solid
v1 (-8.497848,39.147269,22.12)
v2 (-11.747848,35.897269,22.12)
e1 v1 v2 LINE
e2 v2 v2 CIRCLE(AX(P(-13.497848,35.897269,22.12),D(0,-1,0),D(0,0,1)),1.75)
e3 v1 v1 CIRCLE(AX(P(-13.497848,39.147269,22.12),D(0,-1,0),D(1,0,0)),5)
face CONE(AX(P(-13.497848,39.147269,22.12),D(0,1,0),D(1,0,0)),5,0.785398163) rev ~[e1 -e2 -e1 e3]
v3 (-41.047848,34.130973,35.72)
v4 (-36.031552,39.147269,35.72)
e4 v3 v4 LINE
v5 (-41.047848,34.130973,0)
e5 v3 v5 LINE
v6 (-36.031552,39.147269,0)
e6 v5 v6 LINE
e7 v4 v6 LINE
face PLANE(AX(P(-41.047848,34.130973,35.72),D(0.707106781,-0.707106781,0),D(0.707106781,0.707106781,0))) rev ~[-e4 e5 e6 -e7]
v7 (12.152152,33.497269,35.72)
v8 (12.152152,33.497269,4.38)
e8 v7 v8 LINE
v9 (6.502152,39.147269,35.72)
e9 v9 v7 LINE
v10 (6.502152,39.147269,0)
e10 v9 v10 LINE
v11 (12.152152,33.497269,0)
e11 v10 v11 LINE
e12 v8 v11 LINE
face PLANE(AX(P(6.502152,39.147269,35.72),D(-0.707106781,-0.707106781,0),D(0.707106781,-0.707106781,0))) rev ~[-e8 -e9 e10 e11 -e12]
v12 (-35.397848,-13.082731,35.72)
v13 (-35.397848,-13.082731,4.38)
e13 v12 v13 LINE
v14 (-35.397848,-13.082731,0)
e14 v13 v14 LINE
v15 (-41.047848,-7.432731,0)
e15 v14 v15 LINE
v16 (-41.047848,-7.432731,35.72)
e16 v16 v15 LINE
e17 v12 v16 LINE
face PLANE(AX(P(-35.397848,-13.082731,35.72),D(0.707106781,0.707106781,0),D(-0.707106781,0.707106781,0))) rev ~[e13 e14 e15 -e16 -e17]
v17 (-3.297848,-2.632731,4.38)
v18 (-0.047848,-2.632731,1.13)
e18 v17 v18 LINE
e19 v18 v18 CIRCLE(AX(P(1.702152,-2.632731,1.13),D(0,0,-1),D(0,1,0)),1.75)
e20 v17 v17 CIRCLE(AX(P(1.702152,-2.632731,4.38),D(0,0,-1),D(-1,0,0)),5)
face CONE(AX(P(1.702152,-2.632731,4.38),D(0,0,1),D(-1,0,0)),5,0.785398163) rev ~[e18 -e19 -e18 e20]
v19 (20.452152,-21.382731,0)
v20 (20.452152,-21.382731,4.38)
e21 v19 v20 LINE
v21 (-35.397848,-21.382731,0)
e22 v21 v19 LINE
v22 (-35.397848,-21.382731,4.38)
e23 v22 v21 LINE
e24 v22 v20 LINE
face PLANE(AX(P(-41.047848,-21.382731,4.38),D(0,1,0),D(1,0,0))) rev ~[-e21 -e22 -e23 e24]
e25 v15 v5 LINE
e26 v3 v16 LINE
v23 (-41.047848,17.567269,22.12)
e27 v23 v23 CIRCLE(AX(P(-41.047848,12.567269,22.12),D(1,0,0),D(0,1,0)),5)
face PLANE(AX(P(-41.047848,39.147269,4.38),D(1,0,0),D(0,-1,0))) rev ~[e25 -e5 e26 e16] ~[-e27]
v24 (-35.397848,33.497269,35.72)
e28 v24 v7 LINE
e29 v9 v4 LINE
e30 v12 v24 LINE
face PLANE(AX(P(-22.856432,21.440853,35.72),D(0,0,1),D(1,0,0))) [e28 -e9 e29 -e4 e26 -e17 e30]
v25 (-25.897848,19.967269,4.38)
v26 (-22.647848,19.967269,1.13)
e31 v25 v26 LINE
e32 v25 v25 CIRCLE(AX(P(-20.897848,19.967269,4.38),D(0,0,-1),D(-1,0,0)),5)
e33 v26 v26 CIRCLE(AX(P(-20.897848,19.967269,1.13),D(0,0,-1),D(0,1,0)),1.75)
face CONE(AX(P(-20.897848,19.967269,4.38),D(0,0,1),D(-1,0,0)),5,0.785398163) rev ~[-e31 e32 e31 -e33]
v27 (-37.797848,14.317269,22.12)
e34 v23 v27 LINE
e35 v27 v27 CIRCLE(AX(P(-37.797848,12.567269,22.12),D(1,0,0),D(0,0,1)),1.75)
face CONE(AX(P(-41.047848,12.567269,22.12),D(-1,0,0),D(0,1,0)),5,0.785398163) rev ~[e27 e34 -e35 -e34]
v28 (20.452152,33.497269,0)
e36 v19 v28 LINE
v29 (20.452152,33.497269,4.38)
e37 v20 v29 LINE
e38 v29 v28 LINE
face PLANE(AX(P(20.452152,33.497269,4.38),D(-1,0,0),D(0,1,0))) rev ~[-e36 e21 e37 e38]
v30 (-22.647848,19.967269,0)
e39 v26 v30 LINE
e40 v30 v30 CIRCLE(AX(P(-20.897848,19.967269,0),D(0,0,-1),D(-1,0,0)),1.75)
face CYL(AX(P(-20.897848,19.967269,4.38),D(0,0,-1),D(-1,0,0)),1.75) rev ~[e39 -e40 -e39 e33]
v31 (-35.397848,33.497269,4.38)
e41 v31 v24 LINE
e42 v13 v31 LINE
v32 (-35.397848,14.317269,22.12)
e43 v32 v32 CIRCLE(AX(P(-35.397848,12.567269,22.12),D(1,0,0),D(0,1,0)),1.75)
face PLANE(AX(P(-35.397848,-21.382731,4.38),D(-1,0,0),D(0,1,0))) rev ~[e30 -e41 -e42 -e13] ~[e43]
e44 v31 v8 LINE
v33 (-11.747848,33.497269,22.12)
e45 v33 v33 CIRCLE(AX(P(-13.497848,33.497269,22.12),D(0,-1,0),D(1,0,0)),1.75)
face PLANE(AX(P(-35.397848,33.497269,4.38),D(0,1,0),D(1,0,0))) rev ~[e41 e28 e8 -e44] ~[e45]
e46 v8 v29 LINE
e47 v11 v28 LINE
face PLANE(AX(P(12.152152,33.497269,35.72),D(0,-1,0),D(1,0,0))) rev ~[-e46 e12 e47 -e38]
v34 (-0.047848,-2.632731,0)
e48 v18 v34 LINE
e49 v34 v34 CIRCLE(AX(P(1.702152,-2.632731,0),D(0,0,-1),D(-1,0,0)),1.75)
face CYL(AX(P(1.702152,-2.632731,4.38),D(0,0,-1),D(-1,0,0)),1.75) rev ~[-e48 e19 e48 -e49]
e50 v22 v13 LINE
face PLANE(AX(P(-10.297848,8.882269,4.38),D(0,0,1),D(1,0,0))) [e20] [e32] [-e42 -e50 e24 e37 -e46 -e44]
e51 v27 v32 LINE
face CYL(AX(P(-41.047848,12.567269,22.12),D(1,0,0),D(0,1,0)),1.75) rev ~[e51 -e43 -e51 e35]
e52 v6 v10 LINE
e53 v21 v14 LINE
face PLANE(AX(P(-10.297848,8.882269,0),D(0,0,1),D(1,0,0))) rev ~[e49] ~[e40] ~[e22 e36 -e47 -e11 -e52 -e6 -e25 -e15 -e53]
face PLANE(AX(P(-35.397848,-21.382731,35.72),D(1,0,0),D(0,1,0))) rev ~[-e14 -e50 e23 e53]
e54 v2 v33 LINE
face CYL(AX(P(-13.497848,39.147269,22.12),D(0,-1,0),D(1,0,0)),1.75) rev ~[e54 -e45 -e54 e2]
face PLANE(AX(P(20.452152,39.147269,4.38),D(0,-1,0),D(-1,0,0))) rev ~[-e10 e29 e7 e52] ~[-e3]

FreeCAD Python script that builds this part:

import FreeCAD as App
import Part
import Sketcher
from FreeCAD import Vector
Q = App.Units.Quantity


def add_polygon(sketch, points):
    """Adds a closed chain of lines whose ends are joined by coincident constraints."""
    first, n = sketch.GeometryCount, len(points)
    for a, b in zip(points, points[1:] + points[:1]):
        sketch.addGeometry(Part.LineSegment(App.Vector(*a, 0), App.Vector(*b, 0)), False)
    for i in range(n):
        sketch.addConstraint(Sketcher.Constraint("Coincident", first + i, 2, first + (i + 1) % n, 1))

doc = App.newDocument("Part")
body = doc.addObject("PartDesign::Body", "Body")

# Sketch on XY plane
sketch1 = doc.addObject("Sketcher::SketchObject", "Sketch")
body.addObject(sketch1)
sketch1.AttachmentSupport = (doc.XY_Plane, [""])
sketch1.MapMode = "FlatFace"
add_polygon(sketch1, [(-41, 39), (-41, -21), (20, -21), (20, 39)])  # lines 0-3
sketch1.addConstraint([
    Sketcher.Constraint("Vertical", 0),
    Sketcher.Constraint("Horizontal", 1),
    Sketcher.Constraint("Vertical", 2),
    Sketcher.Constraint("Horizontal", 3),
    Sketcher.Constraint("DistanceX", 1, 1, 1, 2, Q("61.5 mm")),
    Sketcher.Constraint("DistanceY", 0, 2, 0, 1, Q("60.53 mm")),
    Sketcher.Constraint("DistanceX", 0, 2, -1, 1, Q("41.047848 mm")),
    Sketcher.Constraint("DistanceY", 0, 2, -1, 1, Q("21.382731 mm")),
])
pad1 = doc.addObject("PartDesign::Pad", "Pad")
body.addObject(pad1)
pad1.Profile = sketch1
pad1.Length = 4.38

# Sketch on XY plane
sketch2 = doc.addObject("Sketcher::SketchObject", "Sketch001")
body.addObject(sketch2)
sketch2.AttachmentSupport = (doc.XY_Plane, [""])
sketch2.MapMode = "FlatFace"
sketch2.AttachmentOffset = App.Placement(Vector(0, 0, 4.38), App.Rotation())
add_polygon(sketch2, [(-41, 39), (-41, -21), (-35, -21), (-35, 33), (20, 33), (20, 39)])  # lines 0-5
sketch2.addConstraint([
    Sketcher.Constraint("Vertical", 0),
    Sketcher.Constraint("Horizontal", 1),
    Sketcher.Constraint("Vertical", 2),
    Sketcher.Constraint("Horizontal", 3),
    Sketcher.Constraint("Vertical", 4),
    Sketcher.Constraint("Horizontal", 5),
    Sketcher.Constraint("Equal", 1, 4),
    Sketcher.Constraint("DistanceX", 5, 2, 5, 1, Q("61.5 mm")),
    Sketcher.Constraint("DistanceX", 1, 1, 1, 2, Q("5.65 mm")),
    Sketcher.Constraint("DistanceY", 0, 2, 0, 1, Q("60.53 mm")),
    Sketcher.Constraint("DistanceX", 0, 2, -1, 1, Q("41.047848 mm")),
    Sketcher.Constraint("DistanceY", 0, 2, -1, 1, Q("21.382731 mm")),
])
pad2 = doc.addObject("PartDesign::Pad", "Pad001")
body.addObject(pad2)
pad2.Profile = sketch2
pad2.Length = 31.34

# Sketch on XY plane
sketch3 = doc.addObject("Sketcher::SketchObject", "Sketch002")
body.addObject(sketch3)
sketch3.AttachmentSupport = (doc.XY_Plane, [""])
sketch3.MapMode = "FlatFace"
sketch3.AttachmentOffset = App.Placement(Vector(0, 0, 35.72), App.Rotation())
add_polygon(sketch3, [(-41, -13), (-41, -21), (-35, -21), (-35, -13)])  # lines 0-3
add_polygon(sketch3, [(12, 39), (12, 33), (20, 33), (20, 39)])  # lines 4-7
sketch3.addConstraint([
    Sketcher.Constraint("Vertical", 0),
    Sketcher.Constraint("Horizontal", 1),
    Sketcher.Constraint("Vertical", 2),
    Sketcher.Constraint("Horizontal", 3),
    Sketcher.Constraint("Vertical", 4),
    Sketcher.Constraint("Horizontal", 5),
    Sketcher.Constraint("Vertical", 6),
    Sketcher.Constraint("Horizontal", 7),
    Sketcher.Constraint("Equal", 7, 0),
    Sketcher.Constraint("Equal", 3, 4),
    Sketcher.Constraint("DistanceX", 5, 1, 5, 2, Q("8.3 mm")),
    Sketcher.Constraint("DistanceX", 1, 1, 1, 2, Q("5.65 mm")),
    Sketcher.Constraint("DistanceX", 3, 2, 4, 2, Q("53.2 mm")),
    Sketcher.Constraint("DistanceY", 2, 2, 4, 2, Q("46.58 mm")),
    Sketcher.Constraint("DistanceX", 0, 2, -1, 1, Q("41.047848 mm")),
    Sketcher.Constraint("DistanceY", 0, 2, -1, 1, Q("21.382731 mm")),
])
pocket1 = doc.addObject("PartDesign::Pocket", "Pocket")
body.addObject(pocket1)
pocket1.Profile = sketch3
pocket1.Type = "ThroughAll"

# Sketch on XY plane
sketch4 = doc.addObject("Sketcher::SketchObject", "Sketch003")
body.addObject(sketch4)
sketch4.AttachmentSupport = (doc.XY_Plane, [""])
sketch4.MapMode = "FlatFace"
sketch4.AttachmentOffset = App.Placement(Vector(0, 0, 35.72), App.Rotation())
add_polygon(sketch4, [(-41, -13), (-35, -13), (-41, -7)])  # lines 0-2
add_polygon(sketch4, [(7, 39), (12, 33), (12, 39)])  # lines 3-5
sketch4.addConstraint([
    Sketcher.Constraint("Horizontal", 0),
    Sketcher.Constraint("Vertical", 2),
    Sketcher.Constraint("Vertical", 4),
    Sketcher.Constraint("Horizontal", 5),
    Sketcher.Constraint("Parallel", 1, 3),
    Sketcher.Constraint("Equal", 0, 5),
    Sketcher.Constraint("Equal", 5, 2),
    Sketcher.Constraint("DistanceX", 0, 1, 0, 2, Q("5.65 mm")),
    Sketcher.Constraint("DistanceX", 1, 2, 3, 2, Q("53.2 mm")),
    Sketcher.Constraint("DistanceY", 0, 2, 3, 2, Q("46.58 mm")),
    Sketcher.Constraint("DistanceX", 0, 2, -1, 1, Q("35.397848 mm")),
    Sketcher.Constraint("DistanceY", 0, 2, -1, 1, Q("13.082731 mm")),
])
pocket2 = doc.addObject("PartDesign::Pocket", "Pocket001")
body.addObject(pocket2)
pocket2.Profile = sketch4
pocket2.Type = "ThroughAll"

# Sketch on XY plane
sketch5 = doc.addObject("Sketcher::SketchObject", "Sketch004")
body.addObject(sketch5)
sketch5.AttachmentSupport = (doc.XY_Plane, [""])
sketch5.MapMode = "FlatFace"
sketch5.AttachmentOffset = App.Placement(Vector(0, 0, 35.72), App.Rotation())
add_polygon(sketch5, [(-41, 34), (-36, 39), (-41, 39)])  # lines 0-2
sketch5.addConstraint([
    Sketcher.Constraint("Horizontal", 1),
    Sketcher.Constraint("Vertical", 2),
    Sketcher.Constraint("Equal", 1, 2),
    Sketcher.Constraint("DistanceX", 1, 2, 1, 1, Q("5.016296 mm")),
    Sketcher.Constraint("DistanceX", 0, 2, -1, 1, Q("36.031552 mm")),
    Sketcher.Constraint("DistanceY", -1, 1, 0, 2, Q("39.147269 mm")),
])
pocket3 = doc.addObject("PartDesign::Pocket", "Pocket002")
body.addObject(pocket3)
pocket3.Profile = sketch5
pocket3.Type = "ThroughAll"

# Sketch on XY plane
sketch6 = doc.addObject("Sketcher::SketchObject", "Sketch005")
body.addObject(sketch6)
sketch6.AttachmentSupport = (doc.XY_Plane, [""])
sketch6.MapMode = "FlatFace"
sketch6.AttachmentOffset = App.Placement(Vector(0, 0, 4.38), App.Rotation())
sketch6.addGeometry(Part.Circle(Vector(1.7, -2.6, 0), Vector(0, 0, 1), 1.8), False)
sketch6.addConstraint([
    Sketcher.Constraint("Diameter", 0, Q("3.5 mm")),
    Sketcher.Constraint("DistanceY", 0, 3, -1, 1, Q("2.632731 mm")),
    Sketcher.Constraint("DistanceX", -1, 1, 0, 3, Q("1.702152 mm")),
])
doc.recompute()
hole = doc.addObject("PartDesign::Hole", "Hole")
body.addObject(hole)
hole.Profile = sketch6
hole.ThreadType = "None"
hole.Diameter = 3.5
hole.DepthType = "ThroughAll"
hole.HoleCutType = "Countersink"
hole.HoleCutDiameter = 10
hole.HoleCutCountersinkAngle = 90

# Sketch on XY plane
sketch7 = doc.addObject("Sketcher::SketchObject", "Sketch006")
body.addObject(sketch7)
sketch7.AttachmentSupport = (doc.XY_Plane, [""])
sketch7.MapMode = "FlatFace"
sketch7.AttachmentOffset = App.Placement(Vector(0, 0, 4.38), App.Rotation())
sketch7.addGeometry(Part.Circle(Vector(-20.9, 20, 0), Vector(0, 0, 1), 1.8), False)
sketch7.addConstraint([
    Sketcher.Constraint("Diameter", 0, Q("3.5 mm")),
    Sketcher.Constraint("DistanceX", 0, 3, -1, 1, Q("20.897848 mm")),
    Sketcher.Constraint("DistanceY", -1, 1, 0, 3, Q("19.967269 mm")),
])
doc.recompute()
hole2 = doc.addObject("PartDesign::Hole", "Hole001")
body.addObject(hole2)
hole2.Profile = sketch7
hole2.ThreadType = "None"
hole2.Diameter = 3.5
hole2.DepthType = "ThroughAll"
hole2.HoleCutType = "Countersink"
hole2.HoleCutDiameter = 10
hole2.HoleCutCountersinkAngle = 90

# Sketch on XZ plane
sketch8 = doc.addObject("Sketcher::SketchObject", "Sketch007")
body.addObject(sketch8)
sketch8.AttachmentSupport = (doc.XZ_Plane, [""])
sketch8.MapMode = "FlatFace"
sketch8.AttachmentOffset = App.Placement(Vector(0, 0, -39.147269), App.Rotation())
sketch8.addGeometry(Part.Circle(Vector(-13.5, 22.1, 0), Vector(0, 0, 1), 1.8), False)
sketch8.addConstraint([
    Sketcher.Constraint("Diameter", 0, Q("3.5 mm")),
    Sketcher.Constraint("DistanceY", -1, 1, 0, 3, Q("22.12 mm")),
    Sketcher.Constraint("DistanceX", 0, 3, -1, 1, Q("13.497848 mm")),
])
doc.recompute()
hole3 = doc.addObject("PartDesign::Hole", "Hole002")
body.addObject(hole3)
hole3.Profile = sketch8
hole3.ThreadType = "None"
hole3.Diameter = 3.5
hole3.DepthType = "ThroughAll"
hole3.HoleCutType = "Countersink"
hole3.HoleCutDiameter = 10
hole3.HoleCutCountersinkAngle = 90
hole3.Reversed = True

# Sketch on YZ plane
sketch9 = doc.addObject("Sketcher::SketchObject", "Sketch008")
body.addObject(sketch9)
sketch9.AttachmentSupport = (doc.YZ_Plane, [""])
sketch9.MapMode = "FlatFace"
sketch9.AttachmentOffset = App.Placement(Vector(0, 0, -41.047848), App.Rotation())
sketch9.addGeometry(Part.Circle(Vector(12.6, 22.1, 0), Vector(0, 0, 1), 1.8), False)
sketch9.addConstraint([
    Sketcher.Constraint("Diameter", 0, Q("3.5 mm")),
    Sketcher.Constraint("DistanceY", -1, 1, 0, 3, Q("22.12 mm")),
    Sketcher.Constraint("DistanceX", -1, 1, 0, 3, Q("12.567269 mm")),
])
doc.recompute()
hole4 = doc.addObject("PartDesign::Hole", "Hole003")
body.addObject(hole4)
hole4.Profile = sketch9
hole4.ThreadType = "None"
hole4.Diameter = 3.5
hole4.DepthType = "ThroughAll"
hole4.HoleCutType = "Countersink"
hole4.HoleCutDiameter = 10
hole4.HoleCutCountersinkAngle = 90
hole4.Reversed = True

doc.recompute()
